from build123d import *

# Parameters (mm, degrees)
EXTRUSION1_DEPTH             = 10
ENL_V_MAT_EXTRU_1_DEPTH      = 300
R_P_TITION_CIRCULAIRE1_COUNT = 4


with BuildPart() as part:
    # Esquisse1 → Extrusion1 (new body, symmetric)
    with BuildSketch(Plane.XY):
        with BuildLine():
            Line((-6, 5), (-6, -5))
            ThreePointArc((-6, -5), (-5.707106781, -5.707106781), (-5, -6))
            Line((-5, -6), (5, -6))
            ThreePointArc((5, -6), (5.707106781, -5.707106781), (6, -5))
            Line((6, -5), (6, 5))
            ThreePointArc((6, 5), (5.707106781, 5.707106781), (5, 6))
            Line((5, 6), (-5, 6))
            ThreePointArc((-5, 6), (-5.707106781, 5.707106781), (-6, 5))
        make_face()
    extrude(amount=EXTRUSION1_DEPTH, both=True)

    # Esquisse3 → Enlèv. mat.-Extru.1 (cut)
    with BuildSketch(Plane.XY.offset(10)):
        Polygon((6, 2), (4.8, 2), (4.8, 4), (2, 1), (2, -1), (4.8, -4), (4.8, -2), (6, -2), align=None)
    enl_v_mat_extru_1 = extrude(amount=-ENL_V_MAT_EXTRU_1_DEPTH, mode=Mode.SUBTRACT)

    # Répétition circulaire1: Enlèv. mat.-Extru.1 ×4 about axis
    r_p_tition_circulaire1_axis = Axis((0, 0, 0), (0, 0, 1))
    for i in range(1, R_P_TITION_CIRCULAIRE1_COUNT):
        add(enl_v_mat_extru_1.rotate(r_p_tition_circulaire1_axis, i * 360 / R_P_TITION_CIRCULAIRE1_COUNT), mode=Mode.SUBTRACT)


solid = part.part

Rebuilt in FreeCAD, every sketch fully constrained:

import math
import FreeCAD as App
import Part
import Sketcher
from FreeCAD import Vector
Q = App.Units.Quantity


def add_polygon(sketch, points):
    """Adds a closed chain of lines whose ends are joined by coincident constraints."""
    first, n = sketch.GeometryCount, len(points)
    for a, b in zip(points, points[1:] + points[:1]):
        sketch.addGeometry(Part.LineSegment(App.Vector(*a, 0), App.Vector(*b, 0)), False)
    for i in range(n):
        sketch.addConstraint(Sketcher.Constraint("Coincident", first + i, 2, first + (i + 1) % n, 1))

doc = App.newDocument("Part")
body = doc.addObject("PartDesign::Body", "Body")

sketch1 = doc.addObject("Sketcher::SketchObject", "Sketch")
body.addObject(sketch1)
sketch1.AttachmentSupport = (doc.XY_Plane, [""])
sketch1.MapMode = "FlatFace"
sketch1.addGeometry(Part.LineSegment(Vector(-6, 5, 0), Vector(-6, -5, 0)), False)
sketch1.addGeometry(Part.ArcOfCircle(Part.Circle(Vector(-5, -5, 0), Vector(0, 0, 1), 1), math.radians(-180), math.radians(-90)), False)
sketch1.addGeometry(Part.LineSegment(Vector(-5, -6, 0), Vector(5, -6, 0)), False)
sketch1.addGeometry(Part.ArcOfCircle(Part.Circle(Vector(5, -5, 0), Vector(0, 0, 1), 1), math.radians(-90), math.radians(0)), False)
sketch1.addGeometry(Part.LineSegment(Vector(6, -5, 0), Vector(6, 5, 0)), False)
sketch1.addGeometry(Part.ArcOfCircle(Part.Circle(Vector(5, 5, 0), Vector(0, 0, 1), 1), math.radians(0), math.radians(90)), False)
sketch1.addGeometry(Part.LineSegment(Vector(5, 6, 0), Vector(-5, 6, 0)), False)
sketch1.addGeometry(Part.ArcOfCircle(Part.Circle(Vector(-5, 5, 0), Vector(0, 0, 1), 1), math.radians(90), math.radians(180)), False)
sketch1.addConstraint(Sketcher.Constraint("Tangent", 0, 2, 1, 1))
sketch1.addConstraint(Sketcher.Constraint("Tangent", 1, 2, 2, 1))
sketch1.addConstraint(Sketcher.Constraint("Tangent", 2, 2, 3, 1))
sketch1.addConstraint(Sketcher.Constraint("Tangent", 3, 2, 4, 1))
sketch1.addConstraint(Sketcher.Constraint("Tangent", 4, 2, 5, 1))
sketch1.addConstraint(Sketcher.Constraint("Tangent", 5, 2, 6, 1))
sketch1.addConstraint(Sketcher.Constraint("Tangent", 6, 2, 7, 1))
sketch1.addConstraint(Sketcher.Constraint("Tangent", 7, 2, 0, 1))
sketch1.addConstraint(Sketcher.Constraint("Vertical", 0))
sketch1.addConstraint(Sketcher.Constraint("Horizontal", 2))
sketch1.addConstraint(Sketcher.Constraint("Vertical", 4))
sketch1.addConstraint(Sketcher.Constraint("Horizontal", 6))
sketch1.addConstraint(Sketcher.Constraint("Equal", 1, 3))
sketch1.addConstraint(Sketcher.Constraint("Equal", 3, 5))
sketch1.addConstraint(Sketcher.Constraint("Equal", 5, 7))
sketch1.addConstraint(Sketcher.Constraint("Symmetric", 1, 3, 5, 3, -1, 1))
sketch1.addConstraint(Sketcher.Constraint("Equal", 6, 0))
sketch1.addConstraint(Sketcher.Constraint("Radius", 1, Q("1 mm")))
sketch1.addConstraint(Sketcher.Constraint("DistanceX", 2, 1, 2, 2, Q("10 mm")))
pad1 = doc.addObject("PartDesign::Pad", "Pad")
body.addObject(pad1)
pad1.Profile = sketch1
pad1.Length = 20
pad1.Midplane = True

sketch2 = doc.addObject("Sketcher::SketchObject", "Sketch001")
body.addObject(sketch2)
sketch2.AttachmentSupport = (doc.XY_Plane, [""])
sketch2.MapMode = "FlatFace"
sketch2.AttachmentOffset = App.Placement(Vector(0, 0, 10), App.Rotation())
add_polygon(sketch2, [(6, 2), (4.8, 2), (4.8, 4), (2, 1), (2, -1), (4.8, -4), (4.8, -2), (6, -2)])
sketch2.addConstraint(Sketcher.Constraint("Horizontal", 0))
sketch2.addConstraint(Sketcher.Constraint("Vertical", 1))
sketch2.addConstraint(Sketcher.Constraint("Vertical", 3))
sketch2.addConstraint(Sketcher.Constraint("Vertical", 5))
sketch2.addConstraint(Sketcher.Constraint("Horizontal", 6))
sketch2.addConstraint(Sketcher.Constraint("Vertical", 7))
sketch2.addConstraint(Sketcher.Constraint("Symmetric", 1, 2, 4, 2, -1))
sketch2.addConstraint(Sketcher.Constraint("Equal", 1, 3))
sketch2.addConstraint(Sketcher.Constraint("Equal", 3, 5))
sketch2.addConstraint(Sketcher.Constraint("Equal", 2, 4))
sketch2.addConstraint(Sketcher.Constraint("DistanceY", 1, 1, 1, 2, Q("2 mm")))
sketch2.addConstraint(Sketcher.Constraint("DistanceY", 7, 1, 7, 2, Q("4 mm")))
sketch2.addConstraint(Sketcher.Constraint("DistanceX", 0, 2, 0, 1, Q("1.2 mm")))
sketch2.addConstraint(Sketcher.Constraint("DistanceX", -1, 1, 2, 2, Q("2 mm")))
sketch2.addConstraint(Sketcher.Constraint("DistanceX", -1, 1, 6, 2, Q("6 mm")))
pocket1 = doc.addObject("PartDesign::Pocket", "Pocket")
body.addObject(pocket1)
pocket1.Profile = sketch2
pocket1.Length = 300
doc.recompute()

polarpattern = doc.addObject("PartDesign::PolarPattern", "PolarPattern")
body.addObject(polarpattern)
polarpattern.Originals = [pocket1]
polarpattern.Axis = (doc.Z_Axis, [""])
polarpattern.Angle = 360
polarpattern.Occurrences = 4
body.Tip = polarpattern

doc.recompute()
